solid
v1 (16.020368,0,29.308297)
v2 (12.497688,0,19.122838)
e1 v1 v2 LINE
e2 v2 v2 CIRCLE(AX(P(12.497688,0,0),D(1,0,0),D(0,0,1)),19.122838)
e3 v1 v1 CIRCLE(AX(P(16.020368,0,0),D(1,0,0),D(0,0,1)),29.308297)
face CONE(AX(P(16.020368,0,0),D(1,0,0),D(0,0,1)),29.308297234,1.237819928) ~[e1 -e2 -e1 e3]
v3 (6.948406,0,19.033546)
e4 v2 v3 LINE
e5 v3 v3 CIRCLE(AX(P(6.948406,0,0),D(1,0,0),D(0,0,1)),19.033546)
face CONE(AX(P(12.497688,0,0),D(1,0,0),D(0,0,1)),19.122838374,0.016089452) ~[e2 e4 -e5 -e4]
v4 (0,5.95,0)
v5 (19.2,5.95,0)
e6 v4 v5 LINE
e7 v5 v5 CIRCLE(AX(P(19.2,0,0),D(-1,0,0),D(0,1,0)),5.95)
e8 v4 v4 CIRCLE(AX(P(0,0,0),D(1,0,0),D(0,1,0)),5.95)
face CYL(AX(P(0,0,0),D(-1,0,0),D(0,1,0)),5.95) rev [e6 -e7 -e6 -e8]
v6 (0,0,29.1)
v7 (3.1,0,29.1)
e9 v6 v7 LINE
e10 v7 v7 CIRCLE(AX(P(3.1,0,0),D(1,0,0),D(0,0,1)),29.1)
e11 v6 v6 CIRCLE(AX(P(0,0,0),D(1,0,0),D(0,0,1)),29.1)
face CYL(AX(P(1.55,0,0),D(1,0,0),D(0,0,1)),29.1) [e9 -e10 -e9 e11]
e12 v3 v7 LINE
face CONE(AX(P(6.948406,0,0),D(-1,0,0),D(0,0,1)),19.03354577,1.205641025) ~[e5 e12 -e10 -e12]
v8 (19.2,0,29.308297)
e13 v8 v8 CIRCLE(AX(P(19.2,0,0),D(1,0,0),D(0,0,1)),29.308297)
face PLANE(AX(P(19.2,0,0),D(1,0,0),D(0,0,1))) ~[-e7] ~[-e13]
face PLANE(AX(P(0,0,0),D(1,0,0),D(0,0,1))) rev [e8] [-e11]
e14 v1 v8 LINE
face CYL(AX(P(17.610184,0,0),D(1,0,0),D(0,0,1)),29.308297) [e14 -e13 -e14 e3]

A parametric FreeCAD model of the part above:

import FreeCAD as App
import Part
import Sketcher
from FreeCAD import Vector

doc = App.newDocument("Part")
body = doc.addObject("PartDesign::Body", "Body")

# Sketch on XZ plane
sketch1 = doc.addObject("Sketcher::SketchObject", "Sketch")
body.addObject(sketch1)
sketch1.AttachmentSupport = (doc.XZ_Plane, [""])
sketch1.MapMode = "FlatFace"
sketch1.addGeometry([
    Part.LineSegment(Vector(0, 29.1, 0), Vector(0, 0, 0)),  # 0
    Part.LineSegment(Vector(0, 0, 0), Vector(19.2, 0, 0)),  # 1
    Part.LineSegment(Vector(19.2, 0, 0), Vector(19.2, 29.308297, 0)),  # 2
    Part.LineSegment(Vector(19.2, 29.308297, 0), Vector(16.020368, 29.308297, 0)),  # 3
    Part.LineSegment(Vector(16.020368, 29.308297, 0), Vector(12.497688, 19.122838, 0)),  # 4
    Part.LineSegment(Vector(12.497688, 19.122838, 0), Vector(6.948406, 19.033546, 0)),  # 5
    Part.LineSegment(Vector(6.948406, 19.033546, 0), Vector(3.1, 29.1, 0)),  # 6
    Part.LineSegment(Vector(3.1, 29.1, 0), Vector(0, 29.1, 0)),  # 7
], False)
sketch1.addConstraint([
    Sketcher.Constraint("Coincident", 0, 2, 1, 1),
    Sketcher.Constraint("Coincident", 1, 2, 2, 1),
    Sketcher.Constraint("Coincident", 2, 2, 3, 1),
    Sketcher.Constraint("Coincident", 3, 2, 4, 1),
    Sketcher.Constraint("Coincident", 4, 2, 5, 1),
    Sketcher.Constraint("Coincident", 5, 2, 6, 1),
    Sketcher.Constraint("Coincident", 6, 2, 7, 1),
    Sketcher.Constraint("Coincident", 7, 2, 0, 1),
    Sketcher.Constraint("Vertical", 0),
    Sketcher.Constraint("Horizontal", 1),
    Sketcher.Constraint("Vertical", 2),
    Sketcher.Constraint("Horizontal", 3),
    Sketcher.Constraint("Horizontal", 7),
    Sketcher.Constraint("Coincident", 0, 2, -1, 1),
    Sketcher.Constraint("DistanceX", 1, 1, 1, 2, 19.2),
    Sketcher.Constraint("DistanceX", 7, 2, 7, 1, 3.1),
    Sketcher.Constraint("DistanceY", 0, 2, 0, 1, 29.1),
    Sketcher.Constraint("Distance", 5, 5.55),
    Sketcher.Constraint("Distance", 6, 10.777),
    Sketcher.Constraint("DistanceX", 3, 2, 3, 1, 3.179632),
    Sketcher.Constraint("DistanceY", 2, 1, 2, 2, 29.308297),
    Sketcher.Constraint("DistanceY", -1, 1, 4, 2, 19.122838),
    Sketcher.Constraint("DistanceX", 4, 2, 3, 2, 3.52268),
])
revolution = doc.addObject("PartDesign::Revolution", "Revolution")
body.addObject(revolution)
revolution.Profile = sketch1
revolution.ReferenceAxis = (sketch1, ["H_Axis"])
revolution.Angle = 360

# Sketch on YZ plane
sketch2 = doc.addObject("Sketcher::SketchObject", "Sketch001")
body.addObject(sketch2)
sketch2.AttachmentSupport = (doc.YZ_Plane, [""])
sketch2.MapMode = "FlatFace"
sketch2.addGeometry(Part.Circle(Vector(0, 0, 0), Vector(0, 0, 1), 5.95), False)
sketch2.addConstraint([
    Sketcher.Constraint("Coincident", 0, 3, -1, 1),
    Sketcher.Constraint("Diameter", 0, 11.9),
])
pocket1 = doc.addObject("PartDesign::Pocket", "Pocket")
body.addObject(pocket1)
pocket1.Profile = sketch2
pocket1.Length = 25
pocket1.Reversed = True

doc.recompute()
